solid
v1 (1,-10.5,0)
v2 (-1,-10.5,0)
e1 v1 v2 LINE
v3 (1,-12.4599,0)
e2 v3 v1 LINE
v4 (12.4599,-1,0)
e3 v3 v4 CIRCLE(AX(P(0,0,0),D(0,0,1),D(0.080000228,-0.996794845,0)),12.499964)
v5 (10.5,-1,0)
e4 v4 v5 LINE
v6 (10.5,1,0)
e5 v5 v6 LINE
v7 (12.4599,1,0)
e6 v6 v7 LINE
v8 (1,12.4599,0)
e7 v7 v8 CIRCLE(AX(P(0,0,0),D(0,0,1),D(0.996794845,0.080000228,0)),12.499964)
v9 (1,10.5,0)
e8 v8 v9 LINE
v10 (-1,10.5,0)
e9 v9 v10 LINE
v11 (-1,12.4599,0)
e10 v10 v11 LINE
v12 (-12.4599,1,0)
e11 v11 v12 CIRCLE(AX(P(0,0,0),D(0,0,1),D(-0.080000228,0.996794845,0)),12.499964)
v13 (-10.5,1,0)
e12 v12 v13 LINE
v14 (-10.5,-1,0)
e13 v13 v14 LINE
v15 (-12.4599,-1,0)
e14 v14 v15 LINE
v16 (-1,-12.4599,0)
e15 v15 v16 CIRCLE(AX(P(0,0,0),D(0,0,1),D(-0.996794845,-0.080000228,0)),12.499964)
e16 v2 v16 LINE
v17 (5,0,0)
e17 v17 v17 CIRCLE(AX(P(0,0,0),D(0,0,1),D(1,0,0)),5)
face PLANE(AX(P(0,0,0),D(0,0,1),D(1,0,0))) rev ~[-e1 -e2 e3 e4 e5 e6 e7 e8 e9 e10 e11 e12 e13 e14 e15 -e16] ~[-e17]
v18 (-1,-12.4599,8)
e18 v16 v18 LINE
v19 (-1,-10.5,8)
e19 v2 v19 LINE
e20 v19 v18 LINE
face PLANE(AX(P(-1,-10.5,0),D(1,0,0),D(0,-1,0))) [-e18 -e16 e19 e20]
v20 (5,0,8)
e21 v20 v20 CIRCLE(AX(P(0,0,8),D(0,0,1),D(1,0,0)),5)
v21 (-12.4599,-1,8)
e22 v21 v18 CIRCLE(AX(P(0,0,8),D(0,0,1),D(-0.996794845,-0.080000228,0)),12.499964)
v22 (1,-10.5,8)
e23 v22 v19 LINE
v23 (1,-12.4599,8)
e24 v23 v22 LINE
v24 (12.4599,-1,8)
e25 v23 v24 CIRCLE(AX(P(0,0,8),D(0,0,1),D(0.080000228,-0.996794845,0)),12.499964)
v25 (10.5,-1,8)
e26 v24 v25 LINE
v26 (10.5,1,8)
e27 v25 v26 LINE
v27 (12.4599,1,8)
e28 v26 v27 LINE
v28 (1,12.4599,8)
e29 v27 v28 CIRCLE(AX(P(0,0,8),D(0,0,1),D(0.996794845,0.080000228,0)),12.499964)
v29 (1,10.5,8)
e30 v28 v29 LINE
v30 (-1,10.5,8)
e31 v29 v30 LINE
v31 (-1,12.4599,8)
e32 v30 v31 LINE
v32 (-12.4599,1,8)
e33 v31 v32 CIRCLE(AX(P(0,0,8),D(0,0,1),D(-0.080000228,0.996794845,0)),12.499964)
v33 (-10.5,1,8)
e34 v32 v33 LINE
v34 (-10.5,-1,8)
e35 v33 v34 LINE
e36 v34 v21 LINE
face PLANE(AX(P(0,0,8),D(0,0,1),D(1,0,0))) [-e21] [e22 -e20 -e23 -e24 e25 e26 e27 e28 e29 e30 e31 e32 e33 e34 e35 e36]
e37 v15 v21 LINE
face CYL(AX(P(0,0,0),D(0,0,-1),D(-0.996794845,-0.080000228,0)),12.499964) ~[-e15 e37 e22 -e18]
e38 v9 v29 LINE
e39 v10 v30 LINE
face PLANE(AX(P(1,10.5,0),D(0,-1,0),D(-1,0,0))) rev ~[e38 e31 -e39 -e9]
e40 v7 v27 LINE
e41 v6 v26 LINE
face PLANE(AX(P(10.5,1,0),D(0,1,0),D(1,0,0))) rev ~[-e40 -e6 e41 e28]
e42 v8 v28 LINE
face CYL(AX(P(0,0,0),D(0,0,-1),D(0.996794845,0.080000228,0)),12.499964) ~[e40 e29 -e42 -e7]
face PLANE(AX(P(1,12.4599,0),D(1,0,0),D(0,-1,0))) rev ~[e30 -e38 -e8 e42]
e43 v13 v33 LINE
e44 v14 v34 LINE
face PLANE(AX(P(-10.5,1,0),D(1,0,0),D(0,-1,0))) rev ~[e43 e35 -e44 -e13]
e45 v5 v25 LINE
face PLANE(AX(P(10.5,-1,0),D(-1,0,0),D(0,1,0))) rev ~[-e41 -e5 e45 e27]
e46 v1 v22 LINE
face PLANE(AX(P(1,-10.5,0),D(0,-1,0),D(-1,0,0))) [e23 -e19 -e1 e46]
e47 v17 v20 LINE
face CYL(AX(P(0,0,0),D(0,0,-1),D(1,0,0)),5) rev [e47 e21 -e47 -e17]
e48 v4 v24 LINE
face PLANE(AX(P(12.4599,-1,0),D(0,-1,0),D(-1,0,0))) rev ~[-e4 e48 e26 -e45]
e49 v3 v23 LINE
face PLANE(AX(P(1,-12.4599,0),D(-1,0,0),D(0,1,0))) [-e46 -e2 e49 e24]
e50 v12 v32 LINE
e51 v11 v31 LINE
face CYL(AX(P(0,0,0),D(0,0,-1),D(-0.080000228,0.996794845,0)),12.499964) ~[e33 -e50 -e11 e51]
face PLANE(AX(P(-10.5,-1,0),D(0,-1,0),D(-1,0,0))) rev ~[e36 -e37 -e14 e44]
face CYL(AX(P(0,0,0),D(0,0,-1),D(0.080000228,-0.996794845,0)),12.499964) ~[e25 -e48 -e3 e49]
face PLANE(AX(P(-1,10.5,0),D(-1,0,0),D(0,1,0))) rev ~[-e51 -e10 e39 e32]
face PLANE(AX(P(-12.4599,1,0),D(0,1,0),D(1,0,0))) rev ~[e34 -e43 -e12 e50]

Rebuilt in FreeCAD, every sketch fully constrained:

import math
import FreeCAD as App
import Part
import Sketcher

V = App.Vector

doc = App.newDocument("Part")
params = doc.addObject("Spreadsheet::Sheet", "Params")
for row, (alias, value) in enumerate([
    ("sketch1_diameter", "10 mm"),
    ("sketch1_radius", "12.5 mm"),
    ("sketch1_width", "2 mm"),
    ("sketch1_width2", "1.96 mm"),
    ("pad1_length", "8 mm"),
], start=1):
    params.set(f"A{row}", alias)
    params.set(f"B{row}", "=" + value)
    params.setAlias(f"B{row}", alias)

body = doc.addObject("PartDesign::Body", "Body")

sketch1 = doc.addObject("Sketcher::SketchObject", "Sketch")
body.addObject(sketch1)
sketch1.AttachmentSupport = (doc.XY_Plane, [""])
sketch1.MapMode = "FlatFace"
sketch1.addGeometry(Part.ArcOfCircle(Part.Circle(V(0, 0, 0), V(0, 0, 1), 12.5), math.radians(95), math.radians(175)), False)
sketch1.addGeometry(Part.LineSegment(V(-12.5, 1, 0), V(-10.5, 1, 0)), False)
sketch1.addGeometry(Part.LineSegment(V(-10.5, 1, 0), V(-10.5, -1, 0)), False)
sketch1.addGeometry(Part.LineSegment(V(-10.5, -1, 0), V(-12.5, -1, 0)), False)
sketch1.addGeometry(Part.ArcOfCircle(Part.Circle(V(0, 0, 0), V(0, 0, 1), 12.5), math.radians(-175), math.radians(-95)), False)
sketch1.addGeometry(Part.LineSegment(V(-1, -12.5, 0), V(-1, -10.5, 0)), False)
sketch1.addGeometry(Part.LineSegment(V(-1, -10.5, 0), V(1, -10.5, 0)), False)
sketch1.addGeometry(Part.LineSegment(V(1, -10.5, 0), V(1, -12.5, 0)), False)
sketch1.addGeometry(Part.ArcOfCircle(Part.Circle(V(0, 0, 0), V(0, 0, 1), 12.5), math.radians(-85), math.radians(-5)), False)
sketch1.addGeometry(Part.LineSegment(V(12.5, -1, 0), V(10.5, -1, 0)), False)
sketch1.addGeometry(Part.LineSegment(V(10.5, -1, 0), V(10.5, 1, 0)), False)
sketch1.addGeometry(Part.LineSegment(V(10.5, 1, 0), V(12.5, 1, 0)), False)
sketch1.addGeometry(Part.ArcOfCircle(Part.Circle(V(0, 0, 0), V(0, 0, 1), 12.5), math.radians(5), math.radians(85)), False)
sketch1.addGeometry(Part.LineSegment(V(1, 12.5, 0), V(1, 10.5, 0)), False)
sketch1.addGeometry(Part.LineSegment(V(1, 10.5, 0), V(-1, 10.5, 0)), False)
sketch1.addGeometry(Part.LineSegment(V(-1, 10.5, 0), V(-1, 12.5, 0)), False)
sketch1.addGeometry(Part.Circle(V(0, 0, 0), V(0, 0, 1), 5), False)
sketch1.addConstraint(Sketcher.Constraint("Coincident", 0, 2, 1, 1))
sketch1.addConstraint(Sketcher.Constraint("Coincident", 1, 2, 2, 1))
sketch1.addConstraint(Sketcher.Constraint("Coincident", 2, 2, 3, 1))
sketch1.addConstraint(Sketcher.Constraint("Coincident", 3, 2, 4, 1))
sketch1.addConstraint(Sketcher.Constraint("Coincident", 4, 2, 5, 1))
sketch1.addConstraint(Sketcher.Constraint("Coincident", 5, 2, 6, 1))
sketch1.addConstraint(Sketcher.Constraint("Coincident", 6, 2, 7, 1))
sketch1.addConstraint(Sketcher.Constraint("Coincident", 7, 2, 8, 1))
sketch1.addConstraint(Sketcher.Constraint("Coincident", 8, 2, 9, 1))
sketch1.addConstraint(Sketcher.Constraint("Coincident", 9, 2, 10, 1))
sketch1.addConstraint(Sketcher.Constraint("Coincident", 10, 2, 11, 1))
sketch1.addConstraint(Sketcher.Constraint("Coincident", 11, 2, 12, 1))
sketch1.addConstraint(Sketcher.Constraint("Coincident", 12, 2, 13, 1))
sketch1.addConstraint(Sketcher.Constraint("Coincident", 13, 2, 14, 1))
sketch1.addConstraint(Sketcher.Constraint("Coincident", 14, 2, 15, 1))
sketch1.addConstraint(Sketcher.Constraint("Coincident", 15, 2, 0, 1))
sketch1.addConstraint(Sketcher.Constraint("Horizontal", 1))
sketch1.addConstraint(Sketcher.Constraint("Vertical", 2))
sketch1.addConstraint(Sketcher.Constraint("Horizontal", 3))
sketch1.addConstraint(Sketcher.Constraint("Vertical", 5))
sketch1.addConstraint(Sketcher.Constraint("Horizontal", 6))
sketch1.addConstraint(Sketcher.Constraint("Vertical", 7))
sketch1.addConstraint(Sketcher.Constraint("Horizontal", 9))
sketch1.addConstraint(Sketcher.Constraint("Vertical", 10))
sketch1.addConstraint(Sketcher.Constraint("Horizontal", 11))
sketch1.addConstraint(Sketcher.Constraint("Vertical", 13))
sketch1.addConstraint(Sketcher.Constraint("Horizontal", 14))
sketch1.addConstraint(Sketcher.Constraint("Vertical", 15))
sketch1.addConstraint(Sketcher.Constraint("Coincident", 0, 3, -1, 1))
sketch1.addConstraint(Sketcher.Constraint("Coincident", 4, 3, -1, 1))
sketch1.addConstraint(Sketcher.Constraint("Coincident", 8, 3, -1, 1))
sketch1.addConstraint(Sketcher.Constraint("Coincident", 12, 3, -1, 1))
sketch1.addConstraint(Sketcher.Constraint("Coincident", 16, 3, -1, 1))
sketch1.addConstraint(Sketcher.Constraint("Equal", 0, 4))
sketch1.addConstraint(Sketcher.Constraint("Equal", 4, 8))
sketch1.addConstraint(Sketcher.Constraint("Equal", 8, 12))
sketch1.addConstraint(Sketcher.Constraint("Symmetric", 1, 2, 9, 2, -1, 1))
sketch1.addConstraint(Sketcher.Constraint("Symmetric", 5, 2, 13, 2, -1, 1))
sketch1.addConstraint(Sketcher.Constraint("Horizontal", 4, 2, 7, 2))
sketch1.addConstraint(Sketcher.Constraint("Horizontal", 3, 2, 8, 2))
sketch1.addConstraint(Sketcher.Constraint("Horizontal", 1, 2, 10, 2))
sketch1.addConstraint(Sketcher.Constraint("Horizontal", 12, 2, 15, 2))
sketch1.addConstraint(Sketcher.Constraint("Equal", 14, 2))
sketch1.addConstraint(Sketcher.Constraint("Equal", 11, 5))
sketch1.addConstraint(Sketcher.Constraint("Diameter", 16, 10.0))
sketch1.addConstraint(Sketcher.Constraint("Radius", 0, 12.5))
sketch1.addConstraint(Sketcher.Constraint("DistanceX", 6, 1, 6, 2, 2.0))
sketch1.addConstraint(Sketcher.Constraint("DistanceX", 1, 1, 1, 2, 1.96))
sketch1.setExpression("Constraints[44]", "Params.sketch1_diameter")
sketch1.setExpression("Constraints[45]", "Params.sketch1_radius")
sketch1.setExpression("Constraints[46]", "Params.sketch1_width")
sketch1.setExpression("Constraints[47]", "Params.sketch1_width2")
pad1 = doc.addObject("PartDesign::Pad", "Pad")
body.addObject(pad1)
pad1.Profile = sketch1
pad1.setExpression("Length", "Params.pad1_length")

doc.recompute()
